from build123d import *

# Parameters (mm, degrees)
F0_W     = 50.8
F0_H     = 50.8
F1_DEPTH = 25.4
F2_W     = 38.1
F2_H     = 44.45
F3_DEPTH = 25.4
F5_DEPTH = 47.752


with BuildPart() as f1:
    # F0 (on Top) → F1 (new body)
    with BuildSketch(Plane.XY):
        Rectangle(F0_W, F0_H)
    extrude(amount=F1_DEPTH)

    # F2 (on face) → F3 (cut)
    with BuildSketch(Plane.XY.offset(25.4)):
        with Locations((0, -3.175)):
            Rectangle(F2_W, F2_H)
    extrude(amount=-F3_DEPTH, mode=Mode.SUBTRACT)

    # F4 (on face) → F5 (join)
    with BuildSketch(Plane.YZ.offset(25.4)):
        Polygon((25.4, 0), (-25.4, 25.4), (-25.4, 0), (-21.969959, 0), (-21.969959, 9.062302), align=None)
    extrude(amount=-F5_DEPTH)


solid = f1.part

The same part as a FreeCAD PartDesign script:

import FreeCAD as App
import Part
import Sketcher
from FreeCAD import Vector
Q = App.Units.Quantity


def add_polygon(sketch, points):
    """Adds a closed chain of lines whose ends are joined by coincident constraints."""
    first, n = sketch.GeometryCount, len(points)
    for a, b in zip(points, points[1:] + points[:1]):
        sketch.addGeometry(Part.LineSegment(App.Vector(*a, 0), App.Vector(*b, 0)), False)
    for i in range(n):
        sketch.addConstraint(Sketcher.Constraint("Coincident", first + i, 2, first + (i + 1) % n, 1))

doc = App.newDocument("Part")
params = doc.addObject("Spreadsheet::Sheet", "Params")
for row, (alias, value) in enumerate([
    ("sketch1_width", "2 in"),
    ("pad1_length", "1 in"),
    ("sketch2_width", "1.5 in"),
    ("sketch2_height", "1.75 in"),
    ("pocket1_length", "1 in"),
    ("sketch3_height", "1 in"),
    ("pad2_length", "1.88 in"),
], start=1):
    params.set(f"A{row}", alias)
    params.set(f"B{row}", "=" + value)
    params.setAlias(f"B{row}", alias)

body = doc.addObject("PartDesign::Body", "Body")

# Sketch on XY plane
sketch1 = body.newObject("Sketcher::SketchObject", "Sketch")
sketch1.AttachmentSupport = (doc.getObject("XY_Plane"), [""])
sketch1.MapMode = "FlatFace"
add_polygon(sketch1, [(-25, 25), (-25, -25), (25, -25), (25, 25)])  # lines 0-3
sketch1.addConstraint(Sketcher.Constraint("Vertical", 0))
sketch1.addConstraint(Sketcher.Constraint("Horizontal", 1))
sketch1.addConstraint(Sketcher.Constraint("Vertical", 2))
sketch1.addConstraint(Sketcher.Constraint("Horizontal", 3))
sketch1.addConstraint(Sketcher.Constraint("Symmetric", 0, 2, 2, 2, -1, 1))
sketch1.addConstraint(Sketcher.Constraint("Equal", 3, 0))
sketch1.addConstraint(Sketcher.Constraint("DistanceX", 1, 1, 1, 2, Q("2 in")))
sketch1.setExpression("Constraints[10]", "Params.sketch1_width")
pad1 = body.newObject("PartDesign::Pad", "Pad")
pad1.Profile = sketch1
pad1.setExpression("Length", "Params.pad1_length")

# Sketch on XY plane
sketch2 = body.newObject("Sketcher::SketchObject", "Sketch001")
sketch2.AttachmentSupport = (doc.getObject("XY_Plane"), [""])
sketch2.MapMode = "FlatFace"
sketch2.AttachmentOffset = App.Placement(Vector(0, 0, 1 * 25.4), App.Rotation())
add_polygon(sketch2, [(-19, 19), (-19, -25), (19, -25), (19, 19)])  # lines 0-3
sketch2.addConstraint(Sketcher.Constraint("Vertical", 0))
sketch2.addConstraint(Sketcher.Constraint("Horizontal", 1))
sketch2.addConstraint(Sketcher.Constraint("Vertical", 2))
sketch2.addConstraint(Sketcher.Constraint("Horizontal", 3))
sketch2.addConstraint(Sketcher.Constraint("DistanceX", 1, 1, 1, 2, Q("1.5 in")))
sketch2.addConstraint(Sketcher.Constraint("DistanceY", 0, 2, -1, 1, Q("1 in")))
sketch2.addConstraint(Sketcher.Constraint("DistanceY", 0, 2, 0, 1, Q("1.75 in")))
sketch2.addConstraint(Sketcher.Constraint("DistanceX", 0, 2, -1, 1, Q("0.75 in")))
sketch2.setExpression("Constraints[8]", "Params.sketch2_width")
sketch2.setExpression("Constraints[10]", "Params.sketch2_height")
pocket1 = body.newObject("PartDesign::Pocket", "Pocket")
pocket1.Profile = sketch2
pocket1.setExpression("Length", "Params.pocket1_length")

# Sketch on YZ plane
sketch3 = body.newObject("Sketcher::SketchObject", "Sketch002")
sketch3.AttachmentSupport = (doc.getObject("YZ_Plane"), [""])
sketch3.MapMode = "FlatFace"
sketch3.AttachmentOffset = App.Placement(Vector(0, 0, 1 * 25.4), App.Rotation())
add_polygon(sketch3, [(25.4, 0), (-25.4, 25.4), (-25.4, 0), (-22, 0), (-22, 9.1)])  # lines 0-4
sketch3.addConstraint(Sketcher.Constraint("Vertical", 1))
sketch3.addConstraint(Sketcher.Constraint("Horizontal", 2))
sketch3.addConstraint(Sketcher.Constraint("Vertical", 3))
sketch3.addConstraint(Sketcher.Constraint("Symmetric", 1, 2, 4, 2, -1, 1))
sketch3.addConstraint(Sketcher.Constraint("PointOnObject", 1, 2, -1))
sketch3.addConstraint(Sketcher.Constraint("DistanceY", 1, 2, 1, 1, Q("1 in")))
sketch3.addConstraint(Sketcher.Constraint("DistanceX", 0, 2, -1, 1, Q("1 in")))
sketch3.addConstraint(Sketcher.Constraint("DistanceX", 2, 1, 2, 2, 3.430041))
sketch3.addConstraint(Sketcher.Constraint("Distance", 4, 48.22902))
sketch3.setExpression("Constraints[10]", "Params.sketch3_height")
pad2 = body.newObject("PartDesign::Pad", "Pad001")
pad2.Profile = sketch3
pad2.setExpression("Length", "Params.pad2_length")
pad2.Reversed = True

doc.recompute()
